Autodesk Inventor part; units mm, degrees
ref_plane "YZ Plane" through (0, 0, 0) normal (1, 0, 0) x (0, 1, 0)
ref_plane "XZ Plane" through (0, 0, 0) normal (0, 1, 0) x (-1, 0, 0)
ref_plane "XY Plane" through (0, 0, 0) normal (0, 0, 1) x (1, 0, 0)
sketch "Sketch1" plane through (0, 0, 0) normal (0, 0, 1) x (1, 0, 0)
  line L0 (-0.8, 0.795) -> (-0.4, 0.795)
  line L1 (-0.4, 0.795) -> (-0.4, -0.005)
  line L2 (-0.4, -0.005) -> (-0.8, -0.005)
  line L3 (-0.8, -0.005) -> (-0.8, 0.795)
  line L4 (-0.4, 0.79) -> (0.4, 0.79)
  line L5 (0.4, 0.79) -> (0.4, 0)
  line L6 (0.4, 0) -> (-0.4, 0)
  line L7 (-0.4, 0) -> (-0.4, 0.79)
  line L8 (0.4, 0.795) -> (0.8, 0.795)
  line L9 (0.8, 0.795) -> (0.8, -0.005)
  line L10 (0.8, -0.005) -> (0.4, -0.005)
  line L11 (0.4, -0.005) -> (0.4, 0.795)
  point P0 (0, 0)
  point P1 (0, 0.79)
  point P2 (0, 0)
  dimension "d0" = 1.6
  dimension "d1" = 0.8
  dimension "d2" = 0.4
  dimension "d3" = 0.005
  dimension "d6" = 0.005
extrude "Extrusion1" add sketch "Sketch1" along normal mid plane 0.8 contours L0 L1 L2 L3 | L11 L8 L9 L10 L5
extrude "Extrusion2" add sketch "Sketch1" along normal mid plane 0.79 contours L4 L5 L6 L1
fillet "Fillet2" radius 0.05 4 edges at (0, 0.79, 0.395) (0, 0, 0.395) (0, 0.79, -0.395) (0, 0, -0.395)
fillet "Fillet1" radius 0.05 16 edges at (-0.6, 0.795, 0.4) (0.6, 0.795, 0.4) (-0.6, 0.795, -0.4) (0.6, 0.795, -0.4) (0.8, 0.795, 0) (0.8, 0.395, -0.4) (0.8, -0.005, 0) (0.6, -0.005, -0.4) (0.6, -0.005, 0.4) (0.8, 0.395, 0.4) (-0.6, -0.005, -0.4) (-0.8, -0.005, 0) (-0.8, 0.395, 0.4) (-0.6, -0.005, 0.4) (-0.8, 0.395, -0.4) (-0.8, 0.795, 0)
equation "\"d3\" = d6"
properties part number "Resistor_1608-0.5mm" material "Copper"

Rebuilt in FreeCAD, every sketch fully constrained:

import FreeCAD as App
import Part
import Sketcher


def edges_at(feature, points):
    """Names of the edges that pass closest to the given points."""
    edges = feature.Shape.Edges
    near = lambda p: min(range(len(edges)), key=lambda i: edges[i].distToShape(Part.Vertex(*p))[0])
    return sorted({f"Edge{near(p) + 1}" for p in points})


def add_polygon(sketch, points):
    """Adds a closed chain of lines whose ends are joined by coincident constraints."""
    first, n = sketch.GeometryCount, len(points)
    for a, b in zip(points, points[1:] + points[:1]):
        sketch.addGeometry(Part.LineSegment(App.Vector(*a, 0), App.Vector(*b, 0)), False)
    for i in range(n):
        sketch.addConstraint(Sketcher.Constraint("Coincident", first + i, 2, first + (i + 1) % n, 1))

doc = App.newDocument("Part")
body = doc.addObject("PartDesign::Body", "Body")
body.AllowCompound = True

# Sketch on XY plane
sketch1 = doc.addObject("Sketcher::SketchObject", "Sketch")
body.addObject(sketch1)
sketch1.AttachmentSupport = (doc.XY_Plane, [""])
sketch1.MapMode = "FlatFace"
add_polygon(sketch1, [(-0.4, 0.8), (-0.8, 0.8), (-0.8, -0.01), (-0.4, -0.01)])  # lines 0-3
add_polygon(sketch1, [(0.4, 0.8), (0.4, -0.01), (0.8, -0.01), (0.8, 0.8)])  # lines 4-7
sketch1.addConstraint([
    Sketcher.Constraint("Horizontal", 0),
    Sketcher.Constraint("Vertical", 1),
    Sketcher.Constraint("Horizontal", 2),
    Sketcher.Constraint("Vertical", 3),
    Sketcher.Constraint("Vertical", 4),
    Sketcher.Constraint("Horizontal", 5),
    Sketcher.Constraint("Vertical", 6),
    Sketcher.Constraint("Horizontal", 7),
    Sketcher.Constraint("Symmetric", 2, 2, 4, 2, -2),
    Sketcher.Constraint("Symmetric", 0, 2, 6, 2, -2),
    Sketcher.Constraint("DistanceX", 0, 2, 0, 1, 0.4),
    Sketcher.Constraint("DistanceY", 1, 2, 1, 1, 0.8),
    Sketcher.Constraint("DistanceX", 0, 2, -1, 1, 0.8),
    Sketcher.Constraint("DistanceY", 1, 2, -1, 1, 0.005),
])
pad1 = doc.addObject("PartDesign::Pad", "Pad")
body.addObject(pad1)
pad1.Profile = sketch1
pad1.Length = 0.8
pad1.Midplane = True

# Sketch on XY plane
sketch2 = doc.addObject("Sketcher::SketchObject", "Sketch001")
body.addObject(sketch2)
sketch2.AttachmentSupport = (doc.XY_Plane, [""])
sketch2.MapMode = "FlatFace"
add_polygon(sketch2, [(0.4, 0.8), (-0.4, 0.8), (-0.4, 0), (0.4, 0)])  # lines 0-3
sketch2.addConstraint([
    Sketcher.Constraint("Horizontal", 0),
    Sketcher.Constraint("Vertical", 1),
    Sketcher.Constraint("Horizontal", 2),
    Sketcher.Constraint("Vertical", 3),
    Sketcher.Constraint("Symmetric", 1, 2, 2, 2, -1, 1),
    Sketcher.Constraint("DistanceX", 0, 2, 0, 1, 0.8),
    Sketcher.Constraint("DistanceY", 1, 2, 1, 1, 0.79),
])
pad2 = doc.addObject("PartDesign::Pad", "Pad001")
body.addObject(pad2)
pad2.Profile = sketch2
pad2.Length = 0.79
pad2.Midplane = True
doc.recompute()

fillet = doc.addObject("PartDesign::Fillet", "Fillet")
body.addObject(fillet)
fillet.Base = (pad2, edges_at(pad2, [
    (0, 0.79, 0.395),
    (0, 0, 0.395),
    (0, 0.79, -0.395),
    (0, 0, -0.395),
]))
fillet.Radius = 0.05
doc.recompute()

fillet2 = doc.addObject("PartDesign::Fillet", "Fillet001")
body.addObject(fillet2)
fillet2.Base = (fillet, edges_at(fillet, [
    (-0.6, 0.795, 0.4),
    (0.6, 0.795, 0.4),
    (-0.6, 0.795, -0.4),
    (0.6, 0.795, -0.4),
    (0.8, 0.795, 0),
    (0.8, 0.395, -0.4),
    (0.8, -0.005, 0),
    (0.6, -0.005, -0.4),
    (0.6, -0.005, 0.4),
    (0.8, 0.395, 0.4),
    (-0.6, -0.005, -0.4),
    (-0.8, -0.005, 0),
    (-0.8, 0.395, 0.4),
    (-0.6, -0.005, 0.4),
    (-0.8, 0.395, -0.4),
    (-0.8, 0.795, 0),
]))
fillet2.Radius = 0.05

doc.recompute()
